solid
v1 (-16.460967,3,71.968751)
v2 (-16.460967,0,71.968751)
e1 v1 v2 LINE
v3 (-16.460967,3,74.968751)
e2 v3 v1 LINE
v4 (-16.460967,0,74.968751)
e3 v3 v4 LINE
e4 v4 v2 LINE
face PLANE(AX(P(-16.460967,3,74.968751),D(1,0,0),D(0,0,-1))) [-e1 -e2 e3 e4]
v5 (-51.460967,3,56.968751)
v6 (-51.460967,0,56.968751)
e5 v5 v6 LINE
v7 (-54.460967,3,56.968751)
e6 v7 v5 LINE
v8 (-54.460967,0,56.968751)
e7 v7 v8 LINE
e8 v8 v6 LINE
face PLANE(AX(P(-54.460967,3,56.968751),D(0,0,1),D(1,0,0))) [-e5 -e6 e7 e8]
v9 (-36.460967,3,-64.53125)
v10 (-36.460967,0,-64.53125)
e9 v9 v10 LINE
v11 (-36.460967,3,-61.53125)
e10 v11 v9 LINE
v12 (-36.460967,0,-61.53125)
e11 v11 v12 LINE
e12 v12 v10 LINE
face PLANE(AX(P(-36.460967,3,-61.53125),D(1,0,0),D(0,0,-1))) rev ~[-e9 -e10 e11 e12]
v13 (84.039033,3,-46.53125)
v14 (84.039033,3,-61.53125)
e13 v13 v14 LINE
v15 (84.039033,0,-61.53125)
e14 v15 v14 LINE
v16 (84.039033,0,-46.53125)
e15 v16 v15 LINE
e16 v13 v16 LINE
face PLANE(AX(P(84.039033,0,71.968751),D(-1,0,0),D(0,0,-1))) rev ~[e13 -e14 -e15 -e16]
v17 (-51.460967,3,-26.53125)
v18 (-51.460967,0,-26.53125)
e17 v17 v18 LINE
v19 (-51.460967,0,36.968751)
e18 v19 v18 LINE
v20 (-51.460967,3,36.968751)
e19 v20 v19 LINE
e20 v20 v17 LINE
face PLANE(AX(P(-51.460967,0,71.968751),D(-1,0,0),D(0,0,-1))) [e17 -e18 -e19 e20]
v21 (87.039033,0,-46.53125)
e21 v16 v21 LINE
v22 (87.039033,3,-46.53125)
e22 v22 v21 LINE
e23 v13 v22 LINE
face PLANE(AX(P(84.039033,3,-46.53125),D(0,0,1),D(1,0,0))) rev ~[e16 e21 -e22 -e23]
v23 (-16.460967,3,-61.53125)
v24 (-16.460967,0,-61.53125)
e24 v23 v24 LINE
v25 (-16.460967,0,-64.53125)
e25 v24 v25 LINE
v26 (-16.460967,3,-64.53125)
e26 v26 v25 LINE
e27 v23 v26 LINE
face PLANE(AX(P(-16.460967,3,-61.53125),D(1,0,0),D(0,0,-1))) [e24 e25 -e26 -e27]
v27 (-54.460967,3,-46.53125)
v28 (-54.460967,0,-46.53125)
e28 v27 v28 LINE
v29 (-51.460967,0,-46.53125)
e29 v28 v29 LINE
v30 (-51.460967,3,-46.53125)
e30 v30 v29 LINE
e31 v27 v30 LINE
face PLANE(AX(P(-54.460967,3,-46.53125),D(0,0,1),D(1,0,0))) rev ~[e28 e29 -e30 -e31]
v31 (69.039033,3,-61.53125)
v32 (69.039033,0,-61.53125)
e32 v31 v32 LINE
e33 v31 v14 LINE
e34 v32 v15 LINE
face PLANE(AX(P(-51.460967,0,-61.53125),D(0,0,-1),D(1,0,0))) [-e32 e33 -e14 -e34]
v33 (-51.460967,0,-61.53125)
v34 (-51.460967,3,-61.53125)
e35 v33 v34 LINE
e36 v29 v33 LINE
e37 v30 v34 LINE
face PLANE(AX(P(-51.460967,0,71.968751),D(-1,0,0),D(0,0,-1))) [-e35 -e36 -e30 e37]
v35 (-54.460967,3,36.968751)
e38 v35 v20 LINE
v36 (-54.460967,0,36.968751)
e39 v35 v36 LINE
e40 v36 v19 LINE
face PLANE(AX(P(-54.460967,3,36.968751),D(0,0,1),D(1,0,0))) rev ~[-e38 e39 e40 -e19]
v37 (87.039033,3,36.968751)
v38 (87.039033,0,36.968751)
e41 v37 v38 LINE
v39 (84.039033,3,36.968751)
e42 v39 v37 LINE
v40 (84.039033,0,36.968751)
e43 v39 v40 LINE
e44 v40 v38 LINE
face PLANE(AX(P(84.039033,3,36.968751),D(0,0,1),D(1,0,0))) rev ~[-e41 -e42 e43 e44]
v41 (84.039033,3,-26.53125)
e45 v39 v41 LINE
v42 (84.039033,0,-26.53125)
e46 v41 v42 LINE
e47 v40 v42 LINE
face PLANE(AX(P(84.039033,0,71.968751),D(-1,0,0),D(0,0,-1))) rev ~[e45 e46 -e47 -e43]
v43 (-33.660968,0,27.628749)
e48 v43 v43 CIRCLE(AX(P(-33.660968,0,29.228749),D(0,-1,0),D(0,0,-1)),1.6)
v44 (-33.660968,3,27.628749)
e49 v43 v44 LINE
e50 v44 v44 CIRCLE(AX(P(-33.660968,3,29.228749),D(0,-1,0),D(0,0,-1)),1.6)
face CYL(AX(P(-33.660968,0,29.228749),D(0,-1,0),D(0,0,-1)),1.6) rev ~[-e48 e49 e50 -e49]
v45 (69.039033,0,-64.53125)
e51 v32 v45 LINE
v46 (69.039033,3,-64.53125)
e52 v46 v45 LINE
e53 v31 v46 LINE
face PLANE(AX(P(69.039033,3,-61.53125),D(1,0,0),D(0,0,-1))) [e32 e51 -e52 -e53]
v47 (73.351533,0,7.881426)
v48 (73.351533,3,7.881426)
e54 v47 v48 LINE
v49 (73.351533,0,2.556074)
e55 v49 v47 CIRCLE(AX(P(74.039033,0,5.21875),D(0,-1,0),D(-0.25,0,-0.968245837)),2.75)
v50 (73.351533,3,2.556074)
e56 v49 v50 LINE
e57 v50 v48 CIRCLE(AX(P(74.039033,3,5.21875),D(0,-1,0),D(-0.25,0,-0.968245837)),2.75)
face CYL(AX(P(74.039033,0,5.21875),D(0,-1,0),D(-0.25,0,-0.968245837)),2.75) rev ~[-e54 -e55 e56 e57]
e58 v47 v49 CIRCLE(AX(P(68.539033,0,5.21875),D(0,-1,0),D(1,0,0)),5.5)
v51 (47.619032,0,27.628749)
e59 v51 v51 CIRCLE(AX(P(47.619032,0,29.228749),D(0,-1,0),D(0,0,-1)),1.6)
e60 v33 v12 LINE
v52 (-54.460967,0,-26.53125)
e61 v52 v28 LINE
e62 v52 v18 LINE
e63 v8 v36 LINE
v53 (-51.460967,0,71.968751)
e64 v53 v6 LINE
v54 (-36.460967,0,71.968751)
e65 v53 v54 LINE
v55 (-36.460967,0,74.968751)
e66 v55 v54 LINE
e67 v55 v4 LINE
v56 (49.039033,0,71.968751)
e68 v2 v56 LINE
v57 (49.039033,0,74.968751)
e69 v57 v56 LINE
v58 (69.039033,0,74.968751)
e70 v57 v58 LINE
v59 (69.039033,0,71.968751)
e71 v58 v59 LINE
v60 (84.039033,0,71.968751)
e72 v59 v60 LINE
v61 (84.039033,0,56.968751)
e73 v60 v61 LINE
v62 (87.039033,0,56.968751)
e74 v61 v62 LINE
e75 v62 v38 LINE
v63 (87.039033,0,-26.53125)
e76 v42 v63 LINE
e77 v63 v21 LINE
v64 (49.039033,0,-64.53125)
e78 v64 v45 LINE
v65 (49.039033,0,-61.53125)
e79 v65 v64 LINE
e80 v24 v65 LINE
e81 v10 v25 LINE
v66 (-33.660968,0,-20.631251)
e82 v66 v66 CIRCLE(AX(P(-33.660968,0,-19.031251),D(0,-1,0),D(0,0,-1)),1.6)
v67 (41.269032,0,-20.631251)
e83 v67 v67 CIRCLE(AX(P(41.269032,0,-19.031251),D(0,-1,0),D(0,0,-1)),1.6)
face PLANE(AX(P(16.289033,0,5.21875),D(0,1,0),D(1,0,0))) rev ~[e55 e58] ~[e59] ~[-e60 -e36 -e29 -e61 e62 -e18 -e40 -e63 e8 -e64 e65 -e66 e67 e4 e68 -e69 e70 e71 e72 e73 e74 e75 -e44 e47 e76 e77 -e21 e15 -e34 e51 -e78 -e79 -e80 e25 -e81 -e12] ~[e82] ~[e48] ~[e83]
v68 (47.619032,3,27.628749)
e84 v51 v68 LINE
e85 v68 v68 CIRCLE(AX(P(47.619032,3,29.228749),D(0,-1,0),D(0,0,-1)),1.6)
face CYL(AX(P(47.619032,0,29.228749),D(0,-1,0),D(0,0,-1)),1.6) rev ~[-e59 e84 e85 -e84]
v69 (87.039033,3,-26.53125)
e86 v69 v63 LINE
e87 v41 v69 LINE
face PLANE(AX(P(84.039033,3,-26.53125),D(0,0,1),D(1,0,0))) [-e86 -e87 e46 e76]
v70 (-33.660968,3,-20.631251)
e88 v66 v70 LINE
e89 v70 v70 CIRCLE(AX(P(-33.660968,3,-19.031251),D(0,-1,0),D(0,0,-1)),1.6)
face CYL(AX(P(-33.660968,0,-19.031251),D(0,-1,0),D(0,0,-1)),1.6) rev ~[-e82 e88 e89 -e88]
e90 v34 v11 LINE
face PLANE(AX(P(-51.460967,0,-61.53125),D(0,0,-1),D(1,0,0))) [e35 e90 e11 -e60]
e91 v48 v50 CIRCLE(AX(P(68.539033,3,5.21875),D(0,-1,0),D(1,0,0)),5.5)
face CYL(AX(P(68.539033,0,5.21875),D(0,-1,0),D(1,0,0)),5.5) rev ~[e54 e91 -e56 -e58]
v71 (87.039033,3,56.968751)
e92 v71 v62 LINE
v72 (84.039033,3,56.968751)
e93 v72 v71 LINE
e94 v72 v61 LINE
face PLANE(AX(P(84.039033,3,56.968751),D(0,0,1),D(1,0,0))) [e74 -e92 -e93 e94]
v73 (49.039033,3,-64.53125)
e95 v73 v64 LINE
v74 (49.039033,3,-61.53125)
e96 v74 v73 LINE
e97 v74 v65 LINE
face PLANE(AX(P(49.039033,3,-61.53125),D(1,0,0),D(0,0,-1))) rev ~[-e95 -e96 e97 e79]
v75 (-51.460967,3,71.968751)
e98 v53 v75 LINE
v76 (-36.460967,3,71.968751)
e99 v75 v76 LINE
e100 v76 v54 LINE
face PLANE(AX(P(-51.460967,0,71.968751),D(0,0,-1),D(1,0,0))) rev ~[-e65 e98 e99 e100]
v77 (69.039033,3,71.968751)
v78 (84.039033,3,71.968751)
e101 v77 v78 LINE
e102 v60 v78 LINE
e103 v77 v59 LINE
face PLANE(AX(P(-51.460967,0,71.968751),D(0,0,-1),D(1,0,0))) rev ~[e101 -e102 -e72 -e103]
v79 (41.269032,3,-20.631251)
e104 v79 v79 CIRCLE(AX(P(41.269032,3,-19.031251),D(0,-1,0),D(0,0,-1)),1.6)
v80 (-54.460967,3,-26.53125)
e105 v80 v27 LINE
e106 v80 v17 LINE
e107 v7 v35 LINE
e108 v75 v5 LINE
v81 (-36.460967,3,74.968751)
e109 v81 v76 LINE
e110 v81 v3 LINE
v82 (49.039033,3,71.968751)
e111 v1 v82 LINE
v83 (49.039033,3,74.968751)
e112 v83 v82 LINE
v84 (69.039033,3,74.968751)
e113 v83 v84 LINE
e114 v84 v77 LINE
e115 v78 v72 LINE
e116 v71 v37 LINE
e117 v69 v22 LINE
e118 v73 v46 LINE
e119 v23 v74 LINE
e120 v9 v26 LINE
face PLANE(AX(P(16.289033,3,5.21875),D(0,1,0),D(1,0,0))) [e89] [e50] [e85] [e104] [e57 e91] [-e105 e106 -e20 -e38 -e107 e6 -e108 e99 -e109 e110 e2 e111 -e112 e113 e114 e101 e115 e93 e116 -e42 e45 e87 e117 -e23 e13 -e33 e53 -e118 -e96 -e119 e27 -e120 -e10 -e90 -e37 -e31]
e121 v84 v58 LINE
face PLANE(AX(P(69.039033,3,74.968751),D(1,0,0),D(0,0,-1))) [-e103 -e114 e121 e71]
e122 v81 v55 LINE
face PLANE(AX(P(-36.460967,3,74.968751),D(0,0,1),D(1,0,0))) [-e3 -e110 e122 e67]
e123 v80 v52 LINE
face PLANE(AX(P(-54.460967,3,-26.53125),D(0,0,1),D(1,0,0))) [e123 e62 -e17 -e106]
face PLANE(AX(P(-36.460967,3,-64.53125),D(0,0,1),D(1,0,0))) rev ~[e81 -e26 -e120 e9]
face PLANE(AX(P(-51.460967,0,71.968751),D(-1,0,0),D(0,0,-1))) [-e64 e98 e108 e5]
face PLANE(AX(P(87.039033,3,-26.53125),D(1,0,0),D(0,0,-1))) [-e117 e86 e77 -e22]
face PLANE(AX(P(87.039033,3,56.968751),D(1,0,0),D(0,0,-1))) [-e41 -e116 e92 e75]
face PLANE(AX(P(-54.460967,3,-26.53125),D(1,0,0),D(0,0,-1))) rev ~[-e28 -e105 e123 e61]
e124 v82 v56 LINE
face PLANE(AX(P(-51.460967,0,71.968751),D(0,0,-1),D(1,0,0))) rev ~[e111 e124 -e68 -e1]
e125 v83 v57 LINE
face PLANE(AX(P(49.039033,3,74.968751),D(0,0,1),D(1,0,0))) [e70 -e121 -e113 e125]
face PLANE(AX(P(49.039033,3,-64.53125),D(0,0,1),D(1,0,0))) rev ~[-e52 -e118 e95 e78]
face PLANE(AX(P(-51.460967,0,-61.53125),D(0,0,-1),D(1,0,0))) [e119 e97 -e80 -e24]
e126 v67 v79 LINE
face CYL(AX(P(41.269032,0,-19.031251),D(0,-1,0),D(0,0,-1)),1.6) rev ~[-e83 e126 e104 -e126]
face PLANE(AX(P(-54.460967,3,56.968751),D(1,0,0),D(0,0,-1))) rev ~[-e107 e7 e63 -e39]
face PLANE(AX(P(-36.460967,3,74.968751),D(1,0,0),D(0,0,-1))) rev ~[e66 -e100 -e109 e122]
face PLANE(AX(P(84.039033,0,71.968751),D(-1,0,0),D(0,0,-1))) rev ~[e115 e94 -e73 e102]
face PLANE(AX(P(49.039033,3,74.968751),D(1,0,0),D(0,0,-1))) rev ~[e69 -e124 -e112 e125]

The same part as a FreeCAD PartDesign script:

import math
import FreeCAD as App
import Part
import Sketcher

V = App.Vector
Q = App.Units.Quantity


def add_polygon(sketch, points):
    """Adds a closed chain of lines whose ends are joined by coincident constraints."""
    first, n = sketch.GeometryCount, len(points)
    for a, b in zip(points, points[1:] + points[:1]):
        sketch.addGeometry(Part.LineSegment(App.Vector(*a, 0), App.Vector(*b, 0)), False)
    for i in range(n):
        sketch.addConstraint(Sketcher.Constraint("Coincident", first + i, 2, first + (i + 1) % n, 1))

doc = App.newDocument("Part")
body = doc.addObject("PartDesign::Body", "Body")

# Sketch on XZ plane
sketch1 = body.newObject("Sketcher::SketchObject", "Sketch")
sketch1.AttachmentSupport = (doc.getObject("XZ_Plane"), [""])
sketch1.MapMode = "FlatFace"
add_polygon(sketch1, [(-51.460967, -61.53125), (-51.460967, 71.968751), (84.039033, 71.968751), (84.039033, -61.53125)])  # lines 0-3
sketch1.addConstraint([
    Sketcher.Constraint("Vertical", 0),
    Sketcher.Constraint("Horizontal", 1),
    Sketcher.Constraint("Vertical", 2),
    Sketcher.Constraint("Horizontal", 3),
    Sketcher.Constraint("DistanceX", 1, 1, 1, 2, Q("135.499999 mm")),
    Sketcher.Constraint("DistanceY", 0, 1, 0, 2, Q("133.5 mm")),
    Sketcher.Constraint("DistanceY", -1, 1, 0, 2, Q("71.968751 mm")),
    Sketcher.Constraint("DistanceX", 0, 2, -1, 1, Q("51.460967 mm")),
])
pad1 = body.newObject("PartDesign::Pad", "Pad")
pad1.Profile = sketch1
pad1.Length = 3
pad1.Reversed = True

# Sketch on XZ plane
sketch2 = body.newObject("Sketcher::SketchObject", "Sketch001")
sketch2.AttachmentSupport = (doc.getObject("XZ_Plane"), [""])
sketch2.MapMode = "FlatFace"
sketch2.AttachmentOffset = App.Placement(V(0, 0, -3), App.Rotation())
add_polygon(sketch2, [(84.039033, -46.53125), (84.039033, -26.53125), (87.039033, -26.53125), (87.039033, -46.53125)])  # lines 0-3
add_polygon(sketch2, [(84.039033, 36.968751), (84.039033, 56.968751), (87.039033, 56.968751), (87.039033, 36.968751)])  # lines 4-7
add_polygon(sketch2, [(49.039033, -64.53125), (49.039033, -61.53125), (69.039033, -61.53125), (69.039033, -64.53125)])  # lines 8-11
add_polygon(sketch2, [(-36.460967, -64.53125), (-36.460967, -61.53125), (-16.460967, -61.53125), (-16.460967, -64.53125)])  # lines 12-15
add_polygon(sketch2, [(-54.460967, -46.53125), (-54.460967, -26.53125), (-51.460967, -26.53125), (-51.460967, -46.53125)])  # lines 16-19
add_polygon(sketch2, [(-54.460967, 36.968751), (-54.460967, 56.968751), (-51.460967, 56.968751), (-51.460967, 36.968751)])  # lines 20-23
add_polygon(sketch2, [(-36.460967, 71.968751), (-36.460967, 74.968751), (-16.460967, 74.968751), (-16.460967, 71.968751)])  # lines 24-27
add_polygon(sketch2, [(49.039033, 71.968751), (49.039033, 74.968751), (69.039033, 74.968751), (69.039033, 71.968751)])  # lines 28-31
sketch2.addConstraint([
    Sketcher.Constraint("Vertical", 0),
    Sketcher.Constraint("Horizontal", 1),
    Sketcher.Constraint("Vertical", 2),
    Sketcher.Constraint("Horizontal", 3),
    Sketcher.Constraint("Vertical", 4),
    Sketcher.Constraint("Horizontal", 5),
    Sketcher.Constraint("Vertical", 6),
    Sketcher.Constraint("Horizontal", 7),
    Sketcher.Constraint("Vertical", 8),
    Sketcher.Constraint("Horizontal", 9),
    Sketcher.Constraint("Vertical", 10),
    Sketcher.Constraint("Horizontal", 11),
    Sketcher.Constraint("Vertical", 12),
    Sketcher.Constraint("Horizontal", 13),
    Sketcher.Constraint("Vertical", 14),
    Sketcher.Constraint("Horizontal", 15),
    Sketcher.Constraint("Vertical", 16),
    Sketcher.Constraint("Horizontal", 17),
    Sketcher.Constraint("Vertical", 18),
    Sketcher.Constraint("Horizontal", 19),
    Sketcher.Constraint("Vertical", 20),
    Sketcher.Constraint("Horizontal", 21),
    Sketcher.Constraint("Vertical", 22),
    Sketcher.Constraint("Horizontal", 23),
    Sketcher.Constraint("Vertical", 24),
    Sketcher.Constraint("Horizontal", 25),
    Sketcher.Constraint("Vertical", 26),
    Sketcher.Constraint("Horizontal", 27),
    Sketcher.Constraint("Vertical", 28),
    Sketcher.Constraint("Horizontal", 29),
    Sketcher.Constraint("Vertical", 30),
    Sketcher.Constraint("Horizontal", 31),
    Sketcher.Constraint("Horizontal", 9, 2, 12, 2),
    Sketcher.Constraint("Horizontal", 11, 2, 14, 2),
    Sketcher.Constraint("Horizontal", 1, 2, 16, 2),
    Sketcher.Constraint("Horizontal", 3, 2, 18, 2),
    Sketcher.Constraint("Horizontal", 5, 2, 20, 2),
    Sketcher.Constraint("Horizontal", 7, 2, 22, 2),
    Sketcher.Constraint("Horizontal", 25, 2, 28, 2),
    Sketcher.Constraint("Horizontal", 27, 2, 30, 2),
    Sketcher.Constraint("Vertical", 3, 2, 4, 2),
    Sketcher.Constraint("Vertical", 2, 2, 5, 2),
    Sketcher.Constraint("Vertical", 19, 2, 20, 2),
    Sketcher.Constraint("Vertical", 18, 2, 21, 2),
    Sketcher.Constraint("Vertical", 15, 2, 24, 2),
    Sketcher.Constraint("Vertical", 14, 2, 25, 2),
    Sketcher.Constraint("Vertical", 11, 2, 28, 2),
    Sketcher.Constraint("Vertical", 10, 2, 29, 2),
    Sketcher.Constraint("Equal", 11, 13),
    Sketcher.Constraint("Equal", 7, 17),
    Sketcher.Constraint("Equal", 31, 0),
    Sketcher.Constraint("Equal", 2, 4),
    Sketcher.Constraint("Equal", 23, 8),
    Sketcher.Constraint("Equal", 14, 24),
    Sketcher.Constraint("DistanceX", 1, 1, 1, 2, Q("3 mm")),
    Sketcher.Constraint("DistanceX", 9, 1, 9, 2, Q("20 mm")),
    Sketcher.Constraint("DistanceX", 8, 2, 3, 2, Q("35 mm")),
    Sketcher.Constraint("DistanceY", 8, 2, 3, 2, Q("15 mm")),
    Sketcher.Constraint("DistanceX", 16, 2, 12, 2, Q("18 mm")),
    Sketcher.Constraint("DistanceY", 21, 2, 24, 2, Q("18 mm")),
    Sketcher.Constraint("DistanceY", 0, 2, 4, 2, Q("83.5 mm")),
    Sketcher.Constraint("DistanceX", 12, 2, 8, 2, Q("85.499999 mm")),
    Sketcher.Constraint("DistanceY", 0, 2, -1, 1, Q("26.53125 mm")),
    Sketcher.Constraint("DistanceX", -1, 1, 0, 2, Q("84.039033 mm")),
])
pad2 = body.newObject("PartDesign::Pad", "Pad001")
pad2.Profile = sketch2
pad2.Type = "UpToLast"

# Sketch on XZ plane
sketch3 = body.newObject("Sketcher::SketchObject", "Sketch002")
sketch3.AttachmentSupport = (doc.getObject("XZ_Plane"), [""])
sketch3.MapMode = "FlatFace"
sketch3.addGeometry([
    Part.Circle(V(-33.660968, 29.228749, 0), V(0, 0, 1), 1.6),
    Part.Circle(V(47.619032, 29.228749, 0), V(0, 0, 1), 1.6),
    Part.Circle(V(41.269032, -19.031251, 0), V(0, 0, 1), 1.6),
    Part.Circle(V(-33.660968, -19.031251, 0), V(0, 0, 1), 1.6),
], False)
sketch3.addConstraint([
    Sketcher.Constraint("Equal", 0, 1),
    Sketcher.Constraint("Equal", 1, 2),
    Sketcher.Constraint("Equal", 2, 3),
    Sketcher.Constraint("Horizontal", 0, 3, 1, 3),
    Sketcher.Constraint("Horizontal", 2, 3, 3, 3),
    Sketcher.Constraint("Vertical", 0, 3, 3, 3),
    Sketcher.Constraint("Diameter", 0, Q("3.2 mm")),
    Sketcher.Constraint("DistanceX", 0, 3, 1, 3, Q("81.28 mm")),
    Sketcher.Constraint("DistanceX", 2, 3, 1, 3, Q("6.35 mm")),
    Sketcher.Constraint("DistanceY", 2, 3, 1, 3, Q("48.26 mm")),
    Sketcher.Constraint("DistanceX", 0, 3, -1, 1, Q("33.660968 mm")),
    Sketcher.Constraint("DistanceY", -1, 1, 0, 3, Q("29.228749 mm")),
])
pocket1 = body.newObject("PartDesign::Pocket", "Pocket")
pocket1.Profile = sketch3
pocket1.Type = "ThroughAll"

# Sketch on XZ plane
sketch4 = body.newObject("Sketcher::SketchObject", "Sketch003")
sketch4.AttachmentSupport = (doc.getObject("XZ_Plane"), [""])
sketch4.MapMode = "FlatFace"
sketch4.addGeometry([
    Part.ArcOfCircle(Part.Circle(V(74.039033, 5.21875, 0), V(0, 0, 1), 2.75), math.radians(-104.477512), math.radians(104.477512)),
    Part.ArcOfCircle(Part.Circle(V(68.539033, 5.21875, 0), V(0, 0, 1), 5.5), math.radians(28.955024), math.radians(331.044976)),
], False)
sketch4.addConstraint([
    Sketcher.Constraint("Coincident", 0, 1, 1, 2),
    Sketcher.Constraint("Coincident", 1, 1, 0, 2),
    Sketcher.Constraint("Horizontal", 0, 3, 1, 3),
    Sketcher.Constraint("Radius", 1, Q("5.5 mm")),
    Sketcher.Constraint("Radius", 0, Q("2.75 mm")),
    Sketcher.Constraint("DistanceX", 1, 3, 0, 3, Q("5.5 mm")),
    Sketcher.Constraint("DistanceY", -1, 1, 0, 3, Q("5.21875 mm")),
    Sketcher.Constraint("DistanceX", -1, 1, 0, 3, Q("74.039033 mm")),
])
pocket2 = body.newObject("PartDesign::Pocket", "Pocket001")
pocket2.Profile = sketch4
pocket2.Type = "ThroughAll"

doc.recompute()
